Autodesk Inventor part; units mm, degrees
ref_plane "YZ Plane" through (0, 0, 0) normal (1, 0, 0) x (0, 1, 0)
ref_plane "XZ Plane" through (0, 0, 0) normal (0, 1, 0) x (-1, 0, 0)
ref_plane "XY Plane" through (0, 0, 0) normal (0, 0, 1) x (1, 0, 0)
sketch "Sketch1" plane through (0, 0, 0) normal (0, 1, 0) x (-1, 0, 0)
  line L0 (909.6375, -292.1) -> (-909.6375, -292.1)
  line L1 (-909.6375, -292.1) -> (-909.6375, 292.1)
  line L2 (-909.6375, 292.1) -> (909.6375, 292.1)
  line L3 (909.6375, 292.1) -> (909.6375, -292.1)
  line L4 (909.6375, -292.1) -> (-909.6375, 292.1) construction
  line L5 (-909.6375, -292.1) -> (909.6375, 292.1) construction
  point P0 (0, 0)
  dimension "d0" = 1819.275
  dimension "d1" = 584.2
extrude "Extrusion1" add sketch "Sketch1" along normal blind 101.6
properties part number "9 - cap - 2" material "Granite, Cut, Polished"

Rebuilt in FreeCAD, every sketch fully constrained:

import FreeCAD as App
import Part
import Sketcher

V = App.Vector
Q = App.Units.Quantity


def add_polygon(sketch, points):
    """Adds a closed chain of lines whose ends are joined by coincident constraints."""
    first, n = sketch.GeometryCount, len(points)
    for a, b in zip(points, points[1:] + points[:1]):
        sketch.addGeometry(Part.LineSegment(App.Vector(*a, 0), App.Vector(*b, 0)), False)
    for i in range(n):
        sketch.addConstraint(Sketcher.Constraint("Coincident", first + i, 2, first + (i + 1) % n, 1))

doc = App.newDocument("Part")
body = doc.addObject("PartDesign::Body", "Body")

# Sketch on XZ plane
sketch1 = doc.addObject("Sketcher::SketchObject", "Sketch")
body.addObject(sketch1)
sketch1.AttachmentSupport = (doc.XZ_Plane, [""])
sketch1.MapMode = "FlatFace"
add_polygon(sketch1, [(910, -292), (-910, -292), (-910, 292), (910, 292)])  # lines 0-3
sketch1.addConstraint([
    Sketcher.Constraint("Horizontal", 0),
    Sketcher.Constraint("Vertical", 1),
    Sketcher.Constraint("Horizontal", 2),
    Sketcher.Constraint("Vertical", 3),
    Sketcher.Constraint("Symmetric", 0, 2, 2, 2, -1, 1),
    Sketcher.Constraint("DistanceY", 1, 1, 1, 2, Q("23 in")),
    Sketcher.Constraint("DistanceX", 0, 2, 0, 1, Q("71.625 in")),
])
pad1 = doc.addObject("PartDesign::Pad", "Pad")
body.addObject(pad1)
pad1.Profile = sketch1
pad1.Length = Q("4 in")
pad1.Reversed = True

doc.recompute()
